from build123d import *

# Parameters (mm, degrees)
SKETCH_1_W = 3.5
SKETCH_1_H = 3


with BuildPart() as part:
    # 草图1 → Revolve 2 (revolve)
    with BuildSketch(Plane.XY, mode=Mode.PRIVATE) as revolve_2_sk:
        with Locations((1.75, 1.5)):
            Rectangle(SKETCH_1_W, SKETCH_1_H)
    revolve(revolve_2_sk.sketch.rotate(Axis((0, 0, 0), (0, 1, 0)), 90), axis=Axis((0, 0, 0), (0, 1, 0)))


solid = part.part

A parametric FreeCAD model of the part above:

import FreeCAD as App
import Part
import Sketcher
from FreeCAD import Vector

doc = App.newDocument("Part")
body = doc.addObject("PartDesign::Body", "Body")

# Sketch on XY plane
sketch1 = body.newObject("Sketcher::SketchObject", "Sketch")
sketch1.AttachmentSupport = (doc.getObject("XY_Plane"), [""])
sketch1.MapMode = "FlatFace"
sketch1.addGeometry([
    Part.LineSegment(Vector(0, 3, 0), Vector(0, 0, 0)),
    Part.LineSegment(Vector(0, 0, 0), Vector(3.5, 0, 0)),
    Part.LineSegment(Vector(3.5, 0, 0), Vector(3.5, 3, 0)),
    Part.LineSegment(Vector(3.5, 3, 0), Vector(0, 3, 0)),
], False)
sketch1.addConstraint([
    Sketcher.Constraint("Coincident", 0, 2, 1, 1),
    Sketcher.Constraint("Coincident", 1, 2, 2, 1),
    Sketcher.Constraint("Coincident", 2, 2, 3, 1),
    Sketcher.Constraint("Coincident", 3, 2, 0, 1),
    Sketcher.Constraint("Vertical", 0),
    Sketcher.Constraint("Horizontal", 1),
    Sketcher.Constraint("Vertical", 2),
    Sketcher.Constraint("Horizontal", 3),
    Sketcher.Constraint("Coincident", 0, 2, -1, 1),
    Sketcher.Constraint("DistanceY", 0, 2, 0, 1, 3.0),
    Sketcher.Constraint("DistanceX", 1, 1, 1, 2, 3.5),
])
revolution = body.newObject("PartDesign::Revolution", "Revolution")
revolution.Profile = sketch1
revolution.ReferenceAxis = (sketch1, ["V_Axis"])
revolution.Angle = 360

doc.recompute()
